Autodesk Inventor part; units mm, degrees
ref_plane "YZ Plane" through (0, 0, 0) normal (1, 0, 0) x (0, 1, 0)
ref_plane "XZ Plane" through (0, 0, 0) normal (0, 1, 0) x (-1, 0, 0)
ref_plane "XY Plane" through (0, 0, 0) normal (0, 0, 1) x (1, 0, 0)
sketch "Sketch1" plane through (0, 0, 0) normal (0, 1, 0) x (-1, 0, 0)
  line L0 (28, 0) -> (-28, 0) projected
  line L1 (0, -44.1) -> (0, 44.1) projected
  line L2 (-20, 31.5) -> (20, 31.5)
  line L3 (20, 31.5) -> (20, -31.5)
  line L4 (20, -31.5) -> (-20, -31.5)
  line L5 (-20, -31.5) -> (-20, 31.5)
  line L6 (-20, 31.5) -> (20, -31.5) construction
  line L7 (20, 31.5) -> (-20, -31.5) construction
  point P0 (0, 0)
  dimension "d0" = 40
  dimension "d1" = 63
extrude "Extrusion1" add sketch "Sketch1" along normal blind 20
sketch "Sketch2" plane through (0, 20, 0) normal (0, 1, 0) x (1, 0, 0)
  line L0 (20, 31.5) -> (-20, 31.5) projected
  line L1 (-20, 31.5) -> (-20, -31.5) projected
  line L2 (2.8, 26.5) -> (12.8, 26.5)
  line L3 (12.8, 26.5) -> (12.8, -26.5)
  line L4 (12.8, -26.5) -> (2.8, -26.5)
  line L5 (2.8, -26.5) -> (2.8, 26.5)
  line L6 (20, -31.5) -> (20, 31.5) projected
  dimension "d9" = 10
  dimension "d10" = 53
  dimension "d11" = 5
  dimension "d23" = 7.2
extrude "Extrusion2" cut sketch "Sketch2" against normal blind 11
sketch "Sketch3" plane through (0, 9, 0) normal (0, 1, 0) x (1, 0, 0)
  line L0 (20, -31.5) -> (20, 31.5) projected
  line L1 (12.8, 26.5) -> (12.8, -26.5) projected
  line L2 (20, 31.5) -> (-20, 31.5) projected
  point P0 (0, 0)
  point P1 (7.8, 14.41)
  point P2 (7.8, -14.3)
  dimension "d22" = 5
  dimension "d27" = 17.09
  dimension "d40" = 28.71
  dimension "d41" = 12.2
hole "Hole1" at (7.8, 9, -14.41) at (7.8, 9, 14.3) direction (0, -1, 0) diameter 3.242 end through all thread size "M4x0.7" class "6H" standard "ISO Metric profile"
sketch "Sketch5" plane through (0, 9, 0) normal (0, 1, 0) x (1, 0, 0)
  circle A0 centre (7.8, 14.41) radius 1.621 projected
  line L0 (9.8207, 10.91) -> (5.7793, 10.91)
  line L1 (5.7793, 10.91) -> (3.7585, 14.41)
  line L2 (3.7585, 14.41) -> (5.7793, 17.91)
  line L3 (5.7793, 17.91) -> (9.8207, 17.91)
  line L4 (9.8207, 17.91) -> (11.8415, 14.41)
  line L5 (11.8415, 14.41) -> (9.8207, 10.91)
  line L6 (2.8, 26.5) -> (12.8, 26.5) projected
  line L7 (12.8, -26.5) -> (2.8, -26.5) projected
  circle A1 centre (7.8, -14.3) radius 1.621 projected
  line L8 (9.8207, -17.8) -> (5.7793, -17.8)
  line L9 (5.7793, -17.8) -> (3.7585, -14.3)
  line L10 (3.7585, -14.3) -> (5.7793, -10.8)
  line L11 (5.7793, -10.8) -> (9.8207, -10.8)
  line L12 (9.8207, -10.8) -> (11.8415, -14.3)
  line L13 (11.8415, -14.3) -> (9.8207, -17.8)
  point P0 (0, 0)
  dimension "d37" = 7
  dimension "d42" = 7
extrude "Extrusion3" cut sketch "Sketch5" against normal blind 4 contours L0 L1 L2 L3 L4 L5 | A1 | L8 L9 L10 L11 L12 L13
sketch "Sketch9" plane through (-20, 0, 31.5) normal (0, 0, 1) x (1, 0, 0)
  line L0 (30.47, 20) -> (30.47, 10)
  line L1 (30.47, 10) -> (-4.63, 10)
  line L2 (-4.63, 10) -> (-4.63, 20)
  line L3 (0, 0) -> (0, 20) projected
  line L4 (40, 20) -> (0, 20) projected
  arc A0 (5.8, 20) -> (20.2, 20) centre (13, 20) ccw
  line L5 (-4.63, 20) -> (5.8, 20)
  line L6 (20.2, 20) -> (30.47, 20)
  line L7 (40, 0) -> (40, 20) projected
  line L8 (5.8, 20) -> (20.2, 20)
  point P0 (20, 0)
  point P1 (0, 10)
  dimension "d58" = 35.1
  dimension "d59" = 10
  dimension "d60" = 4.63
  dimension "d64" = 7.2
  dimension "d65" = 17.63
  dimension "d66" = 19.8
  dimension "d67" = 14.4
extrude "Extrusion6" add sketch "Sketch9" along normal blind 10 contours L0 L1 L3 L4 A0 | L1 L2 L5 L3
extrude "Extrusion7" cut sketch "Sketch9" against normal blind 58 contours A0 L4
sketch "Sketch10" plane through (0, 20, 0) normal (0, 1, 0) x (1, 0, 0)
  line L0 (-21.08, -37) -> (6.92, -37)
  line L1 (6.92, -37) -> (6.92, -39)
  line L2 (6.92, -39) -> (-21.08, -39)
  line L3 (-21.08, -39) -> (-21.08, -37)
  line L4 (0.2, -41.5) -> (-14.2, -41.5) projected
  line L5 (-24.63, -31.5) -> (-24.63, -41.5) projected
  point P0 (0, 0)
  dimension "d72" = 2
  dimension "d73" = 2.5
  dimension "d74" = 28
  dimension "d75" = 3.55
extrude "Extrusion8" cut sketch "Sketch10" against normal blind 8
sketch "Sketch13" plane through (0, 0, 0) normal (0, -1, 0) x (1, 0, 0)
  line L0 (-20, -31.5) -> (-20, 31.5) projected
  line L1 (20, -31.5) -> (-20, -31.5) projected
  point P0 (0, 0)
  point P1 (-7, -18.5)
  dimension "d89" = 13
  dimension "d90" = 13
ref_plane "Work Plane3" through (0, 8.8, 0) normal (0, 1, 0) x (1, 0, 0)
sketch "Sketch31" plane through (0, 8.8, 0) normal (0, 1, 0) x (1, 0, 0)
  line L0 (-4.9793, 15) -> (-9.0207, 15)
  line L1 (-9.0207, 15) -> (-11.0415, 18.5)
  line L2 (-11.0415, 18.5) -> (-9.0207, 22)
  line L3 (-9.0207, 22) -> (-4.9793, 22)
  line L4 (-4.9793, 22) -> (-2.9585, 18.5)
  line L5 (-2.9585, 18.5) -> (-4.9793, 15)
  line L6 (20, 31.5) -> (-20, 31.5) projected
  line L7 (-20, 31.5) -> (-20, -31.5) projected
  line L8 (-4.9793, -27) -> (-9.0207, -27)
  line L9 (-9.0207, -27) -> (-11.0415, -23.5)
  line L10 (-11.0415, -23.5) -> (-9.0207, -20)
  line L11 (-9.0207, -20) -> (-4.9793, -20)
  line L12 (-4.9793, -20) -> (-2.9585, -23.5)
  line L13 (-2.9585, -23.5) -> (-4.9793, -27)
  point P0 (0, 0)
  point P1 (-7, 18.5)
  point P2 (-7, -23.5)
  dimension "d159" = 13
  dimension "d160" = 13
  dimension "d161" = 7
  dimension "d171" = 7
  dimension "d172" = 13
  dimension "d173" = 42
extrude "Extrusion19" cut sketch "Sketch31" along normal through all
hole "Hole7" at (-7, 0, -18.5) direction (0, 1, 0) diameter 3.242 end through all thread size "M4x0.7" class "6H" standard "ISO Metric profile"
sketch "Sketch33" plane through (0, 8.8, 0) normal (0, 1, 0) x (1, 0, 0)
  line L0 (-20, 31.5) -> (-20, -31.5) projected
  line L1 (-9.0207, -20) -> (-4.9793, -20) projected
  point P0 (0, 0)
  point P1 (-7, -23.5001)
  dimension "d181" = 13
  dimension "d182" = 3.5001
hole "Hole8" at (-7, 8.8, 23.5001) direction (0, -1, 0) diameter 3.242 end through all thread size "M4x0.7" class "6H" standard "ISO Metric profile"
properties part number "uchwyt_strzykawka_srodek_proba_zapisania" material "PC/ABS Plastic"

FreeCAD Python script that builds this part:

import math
import FreeCAD as App
import Part
import Sketcher

V = App.Vector
Q = App.Units.Quantity


def add_polygon(sketch, points):
    """Adds a closed chain of lines whose ends are joined by coincident constraints."""
    first, n = sketch.GeometryCount, len(points)
    for a, b in zip(points, points[1:] + points[:1]):
        sketch.addGeometry(Part.LineSegment(App.Vector(*a, 0), App.Vector(*b, 0)), False)
    for i in range(n):
        sketch.addConstraint(Sketcher.Constraint("Coincident", first + i, 2, first + (i + 1) % n, 1))

doc = App.newDocument("Part")
body = doc.addObject("PartDesign::Body", "Body")

# Sketch on XZ plane
sketch1 = doc.addObject("Sketcher::SketchObject", "Sketch")
body.addObject(sketch1)
sketch1.AttachmentSupport = (doc.XZ_Plane, [""])
sketch1.MapMode = "FlatFace"
add_polygon(sketch1, [(-20, -31.5), (-20, 31.5), (20, 31.5), (20, -31.5)])  # lines 0-3
sketch1.addConstraint([
    Sketcher.Constraint("Vertical", 0),
    Sketcher.Constraint("Horizontal", 1),
    Sketcher.Constraint("Vertical", 2),
    Sketcher.Constraint("Horizontal", 3),
    Sketcher.Constraint("Symmetric", 0, 2, 2, 2, -1, 1),
    Sketcher.Constraint("DistanceX", 1, 1, 1, 2, Q("40 mm")),
    Sketcher.Constraint("DistanceY", 0, 1, 0, 2, Q("63 mm")),
])
pad1 = doc.addObject("PartDesign::Pad", "Pad")
body.addObject(pad1)
pad1.Profile = sketch1
pad1.Length = 20
pad1.Reversed = True

# Sketch on XZ plane
sketch2 = doc.addObject("Sketcher::SketchObject", "Sketch001")
body.addObject(sketch2)
sketch2.AttachmentSupport = (doc.XZ_Plane, [""])
sketch2.MapMode = "FlatFace"
sketch2.AttachmentOffset = App.Placement(V(0, 0, -20), App.Rotation())
add_polygon(sketch2, [(12.8, -26.5), (2.8, -26.5), (2.8, 26.5), (12.8, 26.5)])  # lines 0-3
sketch2.addConstraint([
    Sketcher.Constraint("Horizontal", 0),
    Sketcher.Constraint("Vertical", 1),
    Sketcher.Constraint("Horizontal", 2),
    Sketcher.Constraint("Vertical", 3),
    Sketcher.Constraint("DistanceX", 0, 2, 0, 1, Q("10 mm")),
    Sketcher.Constraint("DistanceY", 1, 1, 1, 2, Q("53 mm")),
    Sketcher.Constraint("DistanceX", -1, 1, 0, 2, Q("2.8 mm")),
    Sketcher.Constraint("DistanceY", 0, 2, -1, 1, Q("26.5 mm")),
])
pocket1 = doc.addObject("PartDesign::Pocket", "Pocket")
body.addObject(pocket1)
pocket1.Profile = sketch2
pocket1.Length = 11
pocket1.Reversed = True

# Sketch on XZ plane
sketch3 = doc.addObject("Sketcher::SketchObject", "Sketch002")
body.addObject(sketch3)
sketch3.AttachmentSupport = (doc.XZ_Plane, [""])
sketch3.MapMode = "FlatFace"
sketch3.AttachmentOffset = App.Placement(V(0, 0, -9), App.Rotation())
sketch3.addGeometry([
    Part.Circle(V(7.8, -14.41, 0), V(0, 0, 1), 1.621),
    Part.Circle(V(7.8, 14.3, 0), V(0, 0, 1), 1.621),
], False)
sketch3.addConstraint([
    Sketcher.Constraint("Equal", 0, 1),
    Sketcher.Constraint("Vertical", 0, 3, 1, 3),
    Sketcher.Constraint("Diameter", 0, Q("3.242 mm")),
    Sketcher.Constraint("DistanceX", -1, 1, 0, 3, Q("7.8 mm")),
    Sketcher.Constraint("DistanceY", -1, 1, 1, 3, Q("14.3 mm")),
    Sketcher.Constraint("DistanceY", 0, 3, -1, 1, Q("14.41 mm")),
])
doc.recompute()
hole = doc.addObject("PartDesign::Hole", "Hole")
body.addObject(hole)
hole.Profile = sketch3
hole.ThreadType = "None"
hole.Diameter = 3.242
hole.DepthType = "ThroughAll"
hole.Reversed = True

# Sketch on XZ plane
sketch4 = doc.addObject("Sketcher::SketchObject", "Sketch003")
body.addObject(sketch4)
sketch4.AttachmentSupport = (doc.XZ_Plane, [""])
sketch4.MapMode = "FlatFace"
sketch4.AttachmentOffset = App.Placement(V(0, 0, -9), App.Rotation())
add_polygon(sketch4, [(5.7793, -10.91), (9.8207, -10.91), (11.8415, -14.41), (9.8207, -17.91), (5.7793, -17.91), (3.7585, -14.41)])  # lines 0-5
sketch4.addGeometry(Part.Circle(V(7.8, -14.41, 0), V(0, 0, 1), 1.621), False)  # 6
add_polygon(sketch4, [(5.7793, 17.8), (9.8207, 17.8), (11.8415, 14.3), (9.8207, 10.8), (5.7793, 10.8), (3.7585, 14.3)])  # lines 7-12
sketch4.addConstraint([
    Sketcher.Constraint("Horizontal", 0),
    Sketcher.Constraint("Horizontal", 3),
    Sketcher.Constraint("Horizontal", 7),
    Sketcher.Constraint("Horizontal", 10),
    Sketcher.Constraint("Parallel", 1, 4),
    Sketcher.Constraint("Parallel", 2, 5),
    Sketcher.Constraint("Parallel", 4, 8),
    Sketcher.Constraint("Parallel", 5, 9),
    Sketcher.Constraint("Parallel", 8, 11),
    Sketcher.Constraint("Parallel", 9, 12),
    Sketcher.Constraint("Horizontal", 6, 3, 1, 2),
    Sketcher.Constraint("Horizontal", 1, 2, 4, 2),
    Sketcher.Constraint("Horizontal", 8, 2, 11, 2),
    Sketcher.Constraint("Vertical", 0, 2, 2, 2),
    Sketcher.Constraint("Vertical", 3, 2, 5, 2),
    Sketcher.Constraint("Vertical", 2, 2, 7, 2),
    Sketcher.Constraint("Vertical", 1, 2, 8, 2),
    Sketcher.Constraint("Vertical", 7, 2, 9, 2),
    Sketcher.Constraint("Vertical", 5, 2, 10, 2),
    Sketcher.Constraint("DistanceY", 2, 2, 0, 2, Q("7 mm")),
    Sketcher.Constraint("Angle", 1, Q("-59.999 deg")),
    Sketcher.Constraint("Diameter", 6, Q("3.242 mm")),
    Sketcher.Constraint("DistanceX", -1, 1, 6, 3, Q("7.8 mm")),
    Sketcher.Constraint("DistanceY", -1, 1, 7, 2, Q("17.8 mm")),
    Sketcher.Constraint("DistanceY", 6, 3, -1, 1, Q("14.41 mm")),
    Sketcher.Constraint("DistanceX", 0, 1, 0, 2, Q("4.0414 mm")),
    Sketcher.Constraint("DistanceX", -1, 1, 0, 2, Q("9.8207 mm")),
])
pocket2 = doc.addObject("PartDesign::Pocket", "Pocket001")
body.addObject(pocket2)
pocket2.Profile = sketch4
pocket2.Length = 4
pocket2.Reversed = True

# Sketch on XY plane
sketch5 = doc.addObject("Sketcher::SketchObject", "Sketch004")
body.addObject(sketch5)
sketch5.AttachmentSupport = (doc.XY_Plane, [""])
sketch5.MapMode = "FlatFace"
sketch5.AttachmentOffset = App.Placement(V(0, 0, 31.5), App.Rotation())
sketch5.addGeometry([
    Part.LineSegment(V(10.47, 10, 0), V(10.47, 20, 0)),  # 0
    Part.LineSegment(V(10.47, 20, 0), V(0.2, 20, 0)),  # 1
    Part.ArcOfCircle(Part.Circle(V(-7, 20, 0), V(0, 0, 1), 7.2), math.radians(180), math.radians(360)),  # 2
    Part.LineSegment(V(-14.2, 20, 0), V(-24.63, 20, 0)),  # 3
    Part.LineSegment(V(-24.63, 20, 0), V(-24.63, 10, 0)),  # 4
    Part.LineSegment(V(-24.63, 10, 0), V(10.47, 10, 0)),  # 5
], False)
sketch5.addConstraint([
    Sketcher.Constraint("Coincident", 0, 2, 1, 1),
    Sketcher.Constraint("Coincident", 1, 2, 2, 2),
    Sketcher.Constraint("Coincident", 2, 1, 3, 1),
    Sketcher.Constraint("Coincident", 3, 2, 4, 1),
    Sketcher.Constraint("Coincident", 4, 2, 5, 1),
    Sketcher.Constraint("Coincident", 5, 2, 0, 1),
    Sketcher.Constraint("Vertical", 0),
    Sketcher.Constraint("Horizontal", 1),
    Sketcher.Constraint("Horizontal", 3),
    Sketcher.Constraint("Vertical", 4),
    Sketcher.Constraint("Horizontal", 5),
    Sketcher.Constraint("Horizontal", 2, 3, 0, 2),
    Sketcher.Constraint("Horizontal", 1, 2, 2, 1),
    Sketcher.Constraint("Radius", 2, Q("7.2 mm")),
    Sketcher.Constraint("DistanceY", 0, 1, 0, 2, Q("10 mm")),
    Sketcher.Constraint("DistanceX", 5, 1, 5, 2, Q("35.1 mm")),
    Sketcher.Constraint("DistanceY", -1, 1, 4, 2, Q("10 mm")),
    Sketcher.Constraint("DistanceX", 3, 2, 2, 3, Q("17.63 mm")),
    Sketcher.Constraint("DistanceX", 2, 3, -1, 1, Q("7 mm")),
])
pad2 = doc.addObject("PartDesign::Pad", "Pad001")
body.addObject(pad2)
pad2.Profile = sketch5
pad2.Length = 10

# Sketch on XY plane
sketch6 = doc.addObject("Sketcher::SketchObject", "Sketch005")
body.addObject(sketch6)
sketch6.AttachmentSupport = (doc.XY_Plane, [""])
sketch6.MapMode = "FlatFace"
sketch6.AttachmentOffset = App.Placement(V(0, 0, 31.5), App.Rotation())
sketch6.addGeometry([
    Part.ArcOfCircle(Part.Circle(V(-7, 20, 0), V(0, 0, 1), 7.2), math.radians(180), math.radians(360)),
    Part.LineSegment(V(0.2, 20, 0), V(-14.2, 20, 0)),
], False)
sketch6.addConstraint([
    Sketcher.Constraint("Coincident", 0, 1, 1, 2),
    Sketcher.Constraint("Coincident", 1, 1, 0, 2),
    Sketcher.Constraint("Horizontal", 1),
    Sketcher.Constraint("Radius", 0, Q("7.2 mm")),
    Sketcher.Constraint("DistanceX", 0, 3, -1, 1, Q("7 mm")),
    Sketcher.Constraint("DistanceY", -1, 1, 0, 3, Q("20 mm")),
    Sketcher.Constraint("DistanceY", -1, 1, 0, 1, Q("20 mm")),
])
pocket3 = doc.addObject("PartDesign::Pocket", "Pocket002")
body.addObject(pocket3)
pocket3.Profile = sketch6
pocket3.Length = 58

# Sketch on XZ plane
sketch7 = doc.addObject("Sketcher::SketchObject", "Sketch006")
body.addObject(sketch7)
sketch7.AttachmentSupport = (doc.XZ_Plane, [""])
sketch7.MapMode = "FlatFace"
sketch7.AttachmentOffset = App.Placement(V(0, 0, -20), App.Rotation())
add_polygon(sketch7, [(6.92, 37), (-21.08, 37), (-21.08, 39), (6.92, 39)])  # lines 0-3
sketch7.addConstraint([
    Sketcher.Constraint("Horizontal", 0),
    Sketcher.Constraint("Vertical", 1),
    Sketcher.Constraint("Horizontal", 2),
    Sketcher.Constraint("Vertical", 3),
    Sketcher.Constraint("DistanceX", 0, 2, 0, 1, Q("28 mm")),
    Sketcher.Constraint("DistanceY", 1, 1, 1, 2, Q("2 mm")),
    Sketcher.Constraint("DistanceY", -1, 1, 0, 2, Q("37 mm")),
    Sketcher.Constraint("DistanceX", 0, 2, -1, 1, Q("21.08 mm")),
])
pocket4 = doc.addObject("PartDesign::Pocket", "Pocket003")
body.addObject(pocket4)
pocket4.Profile = sketch7
pocket4.Length = 8
pocket4.Reversed = True

# Sketch on XZ plane
sketch8 = doc.addObject("Sketcher::SketchObject", "Sketch007")
body.addObject(sketch8)
sketch8.AttachmentSupport = (doc.XZ_Plane, [""])
sketch8.MapMode = "FlatFace"
sketch8.AttachmentOffset = App.Placement(V(0, 0, -8.8), App.Rotation())
add_polygon(sketch8, [(-9.0207, -15), (-4.9793, -15), (-2.9585, -18.5), (-4.9793, -22), (-9.0207, -22), (-11.0415, -18.5)])  # lines 0-5
add_polygon(sketch8, [(-9.0207, 27), (-4.9793, 27), (-2.9585, 23.5), (-4.9793, 20), (-9.0207, 20), (-11.0415, 23.5)])  # lines 6-11
sketch8.addConstraint([
    Sketcher.Constraint("Horizontal", 0),
    Sketcher.Constraint("Horizontal", 3),
    Sketcher.Constraint("Horizontal", 6),
    Sketcher.Constraint("Horizontal", 9),
    Sketcher.Constraint("Parallel", 1, 4),
    Sketcher.Constraint("Parallel", 2, 5),
    Sketcher.Constraint("Parallel", 4, 7),
    Sketcher.Constraint("Parallel", 5, 8),
    Sketcher.Constraint("Parallel", 7, 10),
    Sketcher.Constraint("Parallel", 8, 11),
    Sketcher.Constraint("Horizontal", 1, 2, 4, 2),
    Sketcher.Constraint("Horizontal", 7, 2, 10, 2),
    Sketcher.Constraint("Vertical", 0, 2, 2, 2),
    Sketcher.Constraint("Vertical", 3, 2, 5, 2),
    Sketcher.Constraint("Vertical", 2, 2, 6, 2),
    Sketcher.Constraint("Vertical", 1, 2, 7, 2),
    Sketcher.Constraint("Vertical", 6, 2, 8, 2),
    Sketcher.Constraint("Vertical", 5, 2, 9, 2),
    Sketcher.Constraint("DistanceY", 2, 2, 0, 2, Q("7 mm")),
    Sketcher.Constraint("DistanceY", 0, 2, 6, 2, Q("42 mm")),
    Sketcher.Constraint("Angle", 1, Q("-59.999 deg")),
    Sketcher.Constraint("DistanceY", 0, 2, -1, 1, Q("15 mm")),
    Sketcher.Constraint("DistanceX", 0, 1, 0, 2, Q("4.0414 mm")),
    Sketcher.Constraint("DistanceX", 0, 2, -1, 1, Q("4.9793 mm")),
])
pocket5 = doc.addObject("PartDesign::Pocket", "Pocket004")
body.addObject(pocket5)
pocket5.Profile = sketch8
pocket5.Type = "ThroughAll"

# Sketch on XZ plane
sketch9 = doc.addObject("Sketcher::SketchObject", "Sketch008")
body.addObject(sketch9)
sketch9.AttachmentSupport = (doc.XZ_Plane, [""])
sketch9.MapMode = "FlatFace"
sketch9.addGeometry(Part.Circle(V(-7, -18.5, 0), V(0, 0, 1), 1.621), False)
sketch9.addConstraint([
    Sketcher.Constraint("Diameter", 0, Q("3.242 mm")),
    Sketcher.Constraint("DistanceX", 0, 3, -1, 1, Q("7 mm")),
    Sketcher.Constraint("DistanceY", 0, 3, -1, 1, Q("18.5 mm")),
])
doc.recompute()
hole2 = doc.addObject("PartDesign::Hole", "Hole001")
body.addObject(hole2)
hole2.Profile = sketch9
hole2.ThreadType = "None"
hole2.Diameter = 3.242
hole2.DepthType = "ThroughAll"

# Sketch on XZ plane
sketch10 = doc.addObject("Sketcher::SketchObject", "Sketch009")
body.addObject(sketch10)
sketch10.AttachmentSupport = (doc.XZ_Plane, [""])
sketch10.MapMode = "FlatFace"
sketch10.AttachmentOffset = App.Placement(V(0, 0, -8.8), App.Rotation())
sketch10.addGeometry(Part.Circle(V(-7, 23.5001, 0), V(0, 0, 1), 1.621), False)
sketch10.addConstraint([
    Sketcher.Constraint("Diameter", 0, Q("3.242 mm")),
    Sketcher.Constraint("DistanceX", 0, 3, -1, 1, Q("7 mm")),
    Sketcher.Constraint("DistanceY", -1, 1, 0, 3, Q("23.5 mm")),
])
doc.recompute()
hole3 = doc.addObject("PartDesign::Hole", "Hole002")
body.addObject(hole3)
hole3.Profile = sketch10
hole3.ThreadType = "None"
hole3.Diameter = 3.242
hole3.DepthType = "ThroughAll"
hole3.Reversed = True

doc.recompute()
